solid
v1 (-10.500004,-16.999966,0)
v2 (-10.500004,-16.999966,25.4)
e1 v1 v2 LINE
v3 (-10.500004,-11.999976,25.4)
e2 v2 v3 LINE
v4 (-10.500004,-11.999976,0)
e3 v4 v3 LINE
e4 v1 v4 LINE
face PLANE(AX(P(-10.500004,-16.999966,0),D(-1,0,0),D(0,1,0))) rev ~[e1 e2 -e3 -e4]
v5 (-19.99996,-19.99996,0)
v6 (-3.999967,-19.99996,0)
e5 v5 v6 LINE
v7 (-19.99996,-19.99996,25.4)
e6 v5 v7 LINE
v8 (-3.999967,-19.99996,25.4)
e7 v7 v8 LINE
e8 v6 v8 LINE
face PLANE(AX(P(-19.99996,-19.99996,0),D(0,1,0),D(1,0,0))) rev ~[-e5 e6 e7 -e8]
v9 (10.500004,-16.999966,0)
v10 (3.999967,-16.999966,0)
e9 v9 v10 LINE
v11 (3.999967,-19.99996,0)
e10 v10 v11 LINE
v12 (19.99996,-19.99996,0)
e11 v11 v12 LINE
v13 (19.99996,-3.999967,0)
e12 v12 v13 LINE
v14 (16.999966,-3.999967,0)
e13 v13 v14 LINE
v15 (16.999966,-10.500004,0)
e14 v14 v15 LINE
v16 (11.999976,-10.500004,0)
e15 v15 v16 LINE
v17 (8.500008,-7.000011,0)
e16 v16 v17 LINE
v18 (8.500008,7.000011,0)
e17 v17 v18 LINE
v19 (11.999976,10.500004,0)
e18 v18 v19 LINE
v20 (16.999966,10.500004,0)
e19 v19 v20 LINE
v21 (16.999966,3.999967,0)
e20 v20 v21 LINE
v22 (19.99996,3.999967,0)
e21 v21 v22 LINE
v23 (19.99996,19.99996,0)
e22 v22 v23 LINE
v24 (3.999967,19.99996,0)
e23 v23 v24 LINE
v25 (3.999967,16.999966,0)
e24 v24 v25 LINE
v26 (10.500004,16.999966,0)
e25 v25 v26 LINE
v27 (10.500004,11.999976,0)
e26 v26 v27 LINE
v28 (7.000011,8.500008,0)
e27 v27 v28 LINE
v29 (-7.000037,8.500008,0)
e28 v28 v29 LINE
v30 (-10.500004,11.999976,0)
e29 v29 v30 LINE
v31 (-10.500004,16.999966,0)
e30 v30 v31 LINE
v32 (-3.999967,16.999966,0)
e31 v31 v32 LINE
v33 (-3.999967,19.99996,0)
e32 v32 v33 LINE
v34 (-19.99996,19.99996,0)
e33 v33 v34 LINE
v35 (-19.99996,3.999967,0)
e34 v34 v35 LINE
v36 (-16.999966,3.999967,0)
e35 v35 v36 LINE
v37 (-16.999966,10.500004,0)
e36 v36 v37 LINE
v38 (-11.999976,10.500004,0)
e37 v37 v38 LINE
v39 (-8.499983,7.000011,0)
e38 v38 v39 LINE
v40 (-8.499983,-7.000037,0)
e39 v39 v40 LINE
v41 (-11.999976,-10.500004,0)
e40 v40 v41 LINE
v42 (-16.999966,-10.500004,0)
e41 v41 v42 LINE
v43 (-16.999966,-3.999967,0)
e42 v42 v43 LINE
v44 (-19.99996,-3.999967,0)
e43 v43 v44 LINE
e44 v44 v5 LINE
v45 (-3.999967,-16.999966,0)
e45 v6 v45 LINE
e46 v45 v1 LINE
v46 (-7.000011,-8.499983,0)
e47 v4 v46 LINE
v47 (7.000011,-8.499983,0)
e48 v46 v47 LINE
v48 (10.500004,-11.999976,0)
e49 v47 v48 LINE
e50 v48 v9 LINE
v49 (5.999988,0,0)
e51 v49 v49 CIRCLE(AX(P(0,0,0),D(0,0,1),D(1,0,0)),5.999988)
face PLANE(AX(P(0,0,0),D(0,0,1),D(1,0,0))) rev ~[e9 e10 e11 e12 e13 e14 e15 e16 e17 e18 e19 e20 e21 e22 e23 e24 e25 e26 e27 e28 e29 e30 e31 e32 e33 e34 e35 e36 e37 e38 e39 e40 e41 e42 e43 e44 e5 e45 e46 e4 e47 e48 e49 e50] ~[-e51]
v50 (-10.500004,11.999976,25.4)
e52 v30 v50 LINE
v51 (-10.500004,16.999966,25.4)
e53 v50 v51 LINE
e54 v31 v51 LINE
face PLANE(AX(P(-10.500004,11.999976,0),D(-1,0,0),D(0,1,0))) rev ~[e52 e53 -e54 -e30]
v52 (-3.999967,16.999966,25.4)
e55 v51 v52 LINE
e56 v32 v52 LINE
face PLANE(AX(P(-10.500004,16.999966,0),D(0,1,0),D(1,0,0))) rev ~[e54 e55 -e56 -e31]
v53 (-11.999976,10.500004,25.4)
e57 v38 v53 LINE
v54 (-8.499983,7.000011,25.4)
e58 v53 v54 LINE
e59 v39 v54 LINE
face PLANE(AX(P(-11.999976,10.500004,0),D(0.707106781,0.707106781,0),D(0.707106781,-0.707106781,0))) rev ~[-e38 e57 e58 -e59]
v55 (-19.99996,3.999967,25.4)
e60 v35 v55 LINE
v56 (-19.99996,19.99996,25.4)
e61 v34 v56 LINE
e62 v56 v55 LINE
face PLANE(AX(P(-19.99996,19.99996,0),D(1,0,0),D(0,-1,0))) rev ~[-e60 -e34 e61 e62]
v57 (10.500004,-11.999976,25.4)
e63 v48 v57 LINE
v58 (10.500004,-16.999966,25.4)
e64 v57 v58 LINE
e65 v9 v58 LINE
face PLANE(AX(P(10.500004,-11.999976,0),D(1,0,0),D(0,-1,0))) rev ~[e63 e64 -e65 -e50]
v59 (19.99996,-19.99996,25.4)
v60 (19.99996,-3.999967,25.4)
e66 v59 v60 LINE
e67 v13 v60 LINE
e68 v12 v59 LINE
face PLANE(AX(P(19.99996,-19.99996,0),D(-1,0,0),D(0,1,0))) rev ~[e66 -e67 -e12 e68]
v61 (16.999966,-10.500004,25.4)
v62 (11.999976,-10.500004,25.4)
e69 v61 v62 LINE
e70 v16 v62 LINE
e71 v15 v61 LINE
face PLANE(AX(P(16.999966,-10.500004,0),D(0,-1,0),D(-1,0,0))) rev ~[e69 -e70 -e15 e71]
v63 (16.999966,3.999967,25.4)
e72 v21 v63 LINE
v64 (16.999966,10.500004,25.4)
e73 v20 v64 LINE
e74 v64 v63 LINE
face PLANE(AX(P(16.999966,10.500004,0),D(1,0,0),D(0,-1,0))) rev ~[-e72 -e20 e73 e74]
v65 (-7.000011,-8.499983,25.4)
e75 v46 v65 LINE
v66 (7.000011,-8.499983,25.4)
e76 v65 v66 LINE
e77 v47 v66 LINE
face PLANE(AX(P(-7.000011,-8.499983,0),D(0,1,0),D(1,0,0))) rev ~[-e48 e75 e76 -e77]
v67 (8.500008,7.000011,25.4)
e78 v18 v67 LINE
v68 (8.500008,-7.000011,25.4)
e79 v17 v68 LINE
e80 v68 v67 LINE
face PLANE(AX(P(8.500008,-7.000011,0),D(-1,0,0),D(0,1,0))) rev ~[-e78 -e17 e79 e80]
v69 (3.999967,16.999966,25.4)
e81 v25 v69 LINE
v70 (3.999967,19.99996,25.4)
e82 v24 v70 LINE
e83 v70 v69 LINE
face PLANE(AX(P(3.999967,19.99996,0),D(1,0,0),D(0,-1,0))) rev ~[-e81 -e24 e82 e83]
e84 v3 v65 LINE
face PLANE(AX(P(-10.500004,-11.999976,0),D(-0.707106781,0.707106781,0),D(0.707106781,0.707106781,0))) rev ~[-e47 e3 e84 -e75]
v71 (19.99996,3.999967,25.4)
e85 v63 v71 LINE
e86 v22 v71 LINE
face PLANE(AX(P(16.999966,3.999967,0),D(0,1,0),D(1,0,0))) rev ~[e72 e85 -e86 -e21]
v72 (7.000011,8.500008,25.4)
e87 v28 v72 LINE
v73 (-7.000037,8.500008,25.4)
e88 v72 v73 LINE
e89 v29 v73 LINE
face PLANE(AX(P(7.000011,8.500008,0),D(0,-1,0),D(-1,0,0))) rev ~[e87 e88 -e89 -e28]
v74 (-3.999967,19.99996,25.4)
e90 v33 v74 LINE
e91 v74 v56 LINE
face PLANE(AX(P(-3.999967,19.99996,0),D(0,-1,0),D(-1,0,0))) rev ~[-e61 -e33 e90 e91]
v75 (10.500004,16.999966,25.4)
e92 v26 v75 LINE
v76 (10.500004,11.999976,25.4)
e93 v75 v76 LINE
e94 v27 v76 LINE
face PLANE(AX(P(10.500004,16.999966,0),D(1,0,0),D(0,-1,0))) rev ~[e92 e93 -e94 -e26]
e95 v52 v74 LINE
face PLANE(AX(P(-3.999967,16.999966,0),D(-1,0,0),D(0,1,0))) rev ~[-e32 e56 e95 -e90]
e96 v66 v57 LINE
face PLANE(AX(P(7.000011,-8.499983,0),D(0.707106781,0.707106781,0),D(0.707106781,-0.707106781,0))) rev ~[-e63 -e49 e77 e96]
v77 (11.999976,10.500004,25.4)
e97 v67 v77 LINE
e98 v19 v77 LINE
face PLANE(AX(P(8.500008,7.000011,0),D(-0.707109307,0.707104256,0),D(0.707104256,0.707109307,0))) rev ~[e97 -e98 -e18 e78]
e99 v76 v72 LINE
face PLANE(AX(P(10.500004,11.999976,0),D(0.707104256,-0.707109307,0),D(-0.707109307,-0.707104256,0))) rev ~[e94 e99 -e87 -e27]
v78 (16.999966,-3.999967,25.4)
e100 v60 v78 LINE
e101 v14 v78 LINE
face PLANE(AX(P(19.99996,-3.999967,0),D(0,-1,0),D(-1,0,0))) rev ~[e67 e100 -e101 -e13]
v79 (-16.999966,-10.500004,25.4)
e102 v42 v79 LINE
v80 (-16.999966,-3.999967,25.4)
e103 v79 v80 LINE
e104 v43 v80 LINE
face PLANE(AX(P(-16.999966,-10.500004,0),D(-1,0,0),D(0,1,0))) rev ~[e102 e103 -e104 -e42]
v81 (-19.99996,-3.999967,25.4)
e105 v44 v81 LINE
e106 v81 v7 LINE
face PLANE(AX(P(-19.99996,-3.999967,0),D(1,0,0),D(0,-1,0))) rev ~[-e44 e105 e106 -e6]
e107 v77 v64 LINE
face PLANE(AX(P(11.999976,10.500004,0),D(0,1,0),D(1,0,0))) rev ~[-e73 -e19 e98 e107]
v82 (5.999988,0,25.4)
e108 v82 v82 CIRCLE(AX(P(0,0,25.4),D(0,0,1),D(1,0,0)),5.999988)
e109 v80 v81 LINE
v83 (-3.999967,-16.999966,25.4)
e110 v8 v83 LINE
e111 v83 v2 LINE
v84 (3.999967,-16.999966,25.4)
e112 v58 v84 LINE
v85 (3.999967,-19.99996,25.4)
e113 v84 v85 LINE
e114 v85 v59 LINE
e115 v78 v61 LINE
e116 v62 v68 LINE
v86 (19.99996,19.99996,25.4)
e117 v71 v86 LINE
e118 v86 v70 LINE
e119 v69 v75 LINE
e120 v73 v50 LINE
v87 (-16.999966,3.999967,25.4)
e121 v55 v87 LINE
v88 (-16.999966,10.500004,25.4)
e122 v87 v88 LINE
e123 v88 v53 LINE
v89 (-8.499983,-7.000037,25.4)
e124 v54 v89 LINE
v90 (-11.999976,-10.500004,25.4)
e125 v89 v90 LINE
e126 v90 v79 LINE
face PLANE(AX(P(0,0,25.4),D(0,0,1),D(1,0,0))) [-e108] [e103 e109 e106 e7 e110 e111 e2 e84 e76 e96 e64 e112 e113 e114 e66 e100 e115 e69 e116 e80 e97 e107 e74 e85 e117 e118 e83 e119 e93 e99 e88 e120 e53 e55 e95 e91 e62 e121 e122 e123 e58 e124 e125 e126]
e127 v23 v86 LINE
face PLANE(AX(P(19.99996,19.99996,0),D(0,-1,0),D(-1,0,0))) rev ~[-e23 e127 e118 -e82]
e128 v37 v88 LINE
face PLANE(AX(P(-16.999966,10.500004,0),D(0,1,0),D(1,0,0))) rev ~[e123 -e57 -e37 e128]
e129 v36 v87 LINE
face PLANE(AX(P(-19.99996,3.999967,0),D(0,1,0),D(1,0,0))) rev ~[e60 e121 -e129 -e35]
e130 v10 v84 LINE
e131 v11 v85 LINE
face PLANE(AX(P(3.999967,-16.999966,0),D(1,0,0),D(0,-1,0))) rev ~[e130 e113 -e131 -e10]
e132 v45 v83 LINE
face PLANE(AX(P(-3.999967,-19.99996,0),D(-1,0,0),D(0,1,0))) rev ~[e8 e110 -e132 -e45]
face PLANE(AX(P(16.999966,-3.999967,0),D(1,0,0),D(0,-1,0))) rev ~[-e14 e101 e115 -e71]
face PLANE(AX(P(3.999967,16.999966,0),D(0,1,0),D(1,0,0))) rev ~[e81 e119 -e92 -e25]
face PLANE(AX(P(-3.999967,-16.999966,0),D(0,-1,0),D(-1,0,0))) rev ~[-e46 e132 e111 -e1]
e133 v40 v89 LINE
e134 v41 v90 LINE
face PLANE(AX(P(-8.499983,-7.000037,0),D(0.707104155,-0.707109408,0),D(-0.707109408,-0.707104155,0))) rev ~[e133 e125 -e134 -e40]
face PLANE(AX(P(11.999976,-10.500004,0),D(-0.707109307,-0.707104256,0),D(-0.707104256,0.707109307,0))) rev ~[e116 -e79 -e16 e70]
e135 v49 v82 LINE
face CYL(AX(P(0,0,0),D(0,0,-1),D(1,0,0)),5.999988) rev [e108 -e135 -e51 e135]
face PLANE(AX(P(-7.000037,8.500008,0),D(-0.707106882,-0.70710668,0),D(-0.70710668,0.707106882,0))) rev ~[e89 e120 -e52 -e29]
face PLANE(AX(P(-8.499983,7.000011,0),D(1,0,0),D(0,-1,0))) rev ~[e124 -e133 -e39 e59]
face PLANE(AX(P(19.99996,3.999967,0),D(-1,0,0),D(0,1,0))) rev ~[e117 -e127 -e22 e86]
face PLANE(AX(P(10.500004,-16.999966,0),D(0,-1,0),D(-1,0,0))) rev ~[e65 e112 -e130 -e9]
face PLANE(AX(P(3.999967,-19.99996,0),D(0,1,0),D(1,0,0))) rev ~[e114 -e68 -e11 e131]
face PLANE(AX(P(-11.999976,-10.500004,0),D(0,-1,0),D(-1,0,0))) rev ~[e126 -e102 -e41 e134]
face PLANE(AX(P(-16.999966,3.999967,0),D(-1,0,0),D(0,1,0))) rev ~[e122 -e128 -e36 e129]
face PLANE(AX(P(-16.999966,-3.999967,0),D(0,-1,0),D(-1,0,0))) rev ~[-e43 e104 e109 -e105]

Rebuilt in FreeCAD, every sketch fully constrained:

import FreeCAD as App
import Part
import Sketcher
Q = App.Units.Quantity

doc = App.newDocument("Part")
body = doc.addObject("PartDesign::Body", "Body")

# Sketch on XY plane
sketch1 = doc.addObject("Sketcher::SketchObject", "Sketch")
body.addObject(sketch1)
sketch1.AttachmentSupport = (doc.XY_Plane, [""])
sketch1.MapMode = "FlatFace"
sketch1.addGeometry(Part.LineSegment(App.Vector(4, 20, 0), App.Vector(4, 17, 0)), False)
sketch1.addGeometry(Part.LineSegment(App.Vector(4, 17, 0), App.Vector(10.5, 17, 0)), False)
sketch1.addGeometry(Part.LineSegment(App.Vector(10.5, 17, 0), App.Vector(10.5, 12, 0)), False)
sketch1.addGeometry(Part.LineSegment(App.Vector(10.5, 12, 0), App.Vector(7, 8.5, 0)), False)
sketch1.addGeometry(Part.LineSegment(App.Vector(7, 8.5, 0), App.Vector(-7, 8.5, 0)), False)
sketch1.addGeometry(Part.LineSegment(App.Vector(-7, 8.5, 0), App.Vector(-10.5, 12, 0)), False)
sketch1.addGeometry(Part.LineSegment(App.Vector(-10.5, 12, 0), App.Vector(-10.5, 17, 0)), False)
sketch1.addGeometry(Part.LineSegment(App.Vector(-10.5, 17, 0), App.Vector(-4, 17, 0)), False)
sketch1.addGeometry(Part.LineSegment(App.Vector(-4, 17, 0), App.Vector(-4, 20, 0)), False)
sketch1.addGeometry(Part.LineSegment(App.Vector(-4, 20, 0), App.Vector(-20, 20, 0)), False)
sketch1.addGeometry(Part.LineSegment(App.Vector(-20, 20, 0), App.Vector(-20, 4, 0)), False)
sketch1.addGeometry(Part.LineSegment(App.Vector(-20, 4, 0), App.Vector(-17, 4, 0)), False)
sketch1.addGeometry(Part.LineSegment(App.Vector(-17, 4, 0), App.Vector(-17, 10.5, 0)), False)
sketch1.addGeometry(Part.LineSegment(App.Vector(-17, 10.5, 0), App.Vector(-12, 10.5, 0)), False)
sketch1.addGeometry(Part.LineSegment(App.Vector(-12, 10.5, 0), App.Vector(-8.5, 7, 0)), False)
sketch1.addGeometry(Part.LineSegment(App.Vector(-8.5, 7, 0), App.Vector(-8.5, -7, 0)), False)
sketch1.addGeometry(Part.LineSegment(App.Vector(-8.5, -7, 0), App.Vector(-12, -10.5, 0)), False)
sketch1.addGeometry(Part.LineSegment(App.Vector(-12, -10.5, 0), App.Vector(-17, -10.5, 0)), False)
sketch1.addGeometry(Part.LineSegment(App.Vector(-17, -10.5, 0), App.Vector(-17, -4, 0)), False)
sketch1.addGeometry(Part.LineSegment(App.Vector(-17, -4, 0), App.Vector(-20, -4, 0)), False)
sketch1.addGeometry(Part.LineSegment(App.Vector(-20, -4, 0), App.Vector(-20, -20, 0)), False)
sketch1.addGeometry(Part.LineSegment(App.Vector(-20, -20, 0), App.Vector(-4, -20, 0)), False)
sketch1.addGeometry(Part.LineSegment(App.Vector(-4, -20, 0), App.Vector(-4, -17, 0)), False)
sketch1.addGeometry(Part.LineSegment(App.Vector(-4, -17, 0), App.Vector(-10.5, -17, 0)), False)
sketch1.addGeometry(Part.LineSegment(App.Vector(-10.5, -17, 0), App.Vector(-10.5, -12, 0)), False)
sketch1.addGeometry(Part.LineSegment(App.Vector(-10.5, -12, 0), App.Vector(-7, -8.5, 0)), False)
sketch1.addGeometry(Part.LineSegment(App.Vector(-7, -8.5, 0), App.Vector(7, -8.5, 0)), False)
sketch1.addGeometry(Part.LineSegment(App.Vector(7, -8.5, 0), App.Vector(10.5, -12, 0)), False)
sketch1.addGeometry(Part.LineSegment(App.Vector(10.5, -12, 0), App.Vector(10.5, -17, 0)), False)
sketch1.addGeometry(Part.LineSegment(App.Vector(10.5, -17, 0), App.Vector(4, -17, 0)), False)
sketch1.addGeometry(Part.LineSegment(App.Vector(4, -17, 0), App.Vector(4, -20, 0)), False)
sketch1.addGeometry(Part.LineSegment(App.Vector(4, -20, 0), App.Vector(20, -20, 0)), False)
sketch1.addGeometry(Part.LineSegment(App.Vector(20, -20, 0), App.Vector(20, -4, 0)), False)
sketch1.addGeometry(Part.LineSegment(App.Vector(20, -4, 0), App.Vector(17, -4, 0)), False)
sketch1.addGeometry(Part.LineSegment(App.Vector(17, -4, 0), App.Vector(17, -10.5, 0)), False)
sketch1.addGeometry(Part.LineSegment(App.Vector(17, -10.5, 0), App.Vector(12, -10.5, 0)), False)
sketch1.addGeometry(Part.LineSegment(App.Vector(12, -10.5, 0), App.Vector(8.5, -7, 0)), False)
sketch1.addGeometry(Part.LineSegment(App.Vector(8.5, -7, 0), App.Vector(8.5, 7, 0)), False)
sketch1.addGeometry(Part.LineSegment(App.Vector(8.5, 7, 0), App.Vector(12, 10.5, 0)), False)
sketch1.addGeometry(Part.LineSegment(App.Vector(12, 10.5, 0), App.Vector(17, 10.5, 0)), False)
sketch1.addGeometry(Part.LineSegment(App.Vector(17, 10.5, 0), App.Vector(17, 4, 0)), False)
sketch1.addGeometry(Part.LineSegment(App.Vector(17, 4, 0), App.Vector(20, 4, 0)), False)
sketch1.addGeometry(Part.LineSegment(App.Vector(20, 4, 0), App.Vector(20, 20, 0)), False)
sketch1.addGeometry(Part.LineSegment(App.Vector(20, 20, 0), App.Vector(4, 20, 0)), False)
sketch1.addGeometry(Part.Circle(App.Vector(0, 0, 0), App.Vector(0, 0, 1), 6), False)
sketch1.addConstraint(Sketcher.Constraint("Coincident", 0, 2, 1, 1))
sketch1.addConstraint(Sketcher.Constraint("Coincident", 1, 2, 2, 1))
sketch1.addConstraint(Sketcher.Constraint("Coincident", 2, 2, 3, 1))
sketch1.addConstraint(Sketcher.Constraint("Coincident", 3, 2, 4, 1))
sketch1.addConstraint(Sketcher.Constraint("Coincident", 4, 2, 5, 1))
sketch1.addConstraint(Sketcher.Constraint("Coincident", 5, 2, 6, 1))
sketch1.addConstraint(Sketcher.Constraint("Coincident", 6, 2, 7, 1))
sketch1.addConstraint(Sketcher.Constraint("Coincident", 7, 2, 8, 1))
sketch1.addConstraint(Sketcher.Constraint("Coincident", 8, 2, 9, 1))
sketch1.addConstraint(Sketcher.Constraint("Coincident", 9, 2, 10, 1))
sketch1.addConstraint(Sketcher.Constraint("Coincident", 10, 2, 11, 1))
sketch1.addConstraint(Sketcher.Constraint("Coincident", 11, 2, 12, 1))
sketch1.addConstraint(Sketcher.Constraint("Coincident", 12, 2, 13, 1))
sketch1.addConstraint(Sketcher.Constraint("Coincident", 13, 2, 14, 1))
sketch1.addConstraint(Sketcher.Constraint("Coincident", 14, 2, 15, 1))
sketch1.addConstraint(Sketcher.Constraint("Coincident", 15, 2, 16, 1))
sketch1.addConstraint(Sketcher.Constraint("Coincident", 16, 2, 17, 1))
sketch1.addConstraint(Sketcher.Constraint("Coincident", 17, 2, 18, 1))
sketch1.addConstraint(Sketcher.Constraint("Coincident", 18, 2, 19, 1))
sketch1.addConstraint(Sketcher.Constraint("Coincident", 19, 2, 20, 1))
sketch1.addConstraint(Sketcher.Constraint("Coincident", 20, 2, 21, 1))
sketch1.addConstraint(Sketcher.Constraint("Coincident", 21, 2, 22, 1))
sketch1.addConstraint(Sketcher.Constraint("Coincident", 22, 2, 23, 1))
sketch1.addConstraint(Sketcher.Constraint("Coincident", 23, 2, 24, 1))
sketch1.addConstraint(Sketcher.Constraint("Coincident", 24, 2, 25, 1))
sketch1.addConstraint(Sketcher.Constraint("Coincident", 25, 2, 26, 1))
sketch1.addConstraint(Sketcher.Constraint("Coincident", 26, 2, 27, 1))
sketch1.addConstraint(Sketcher.Constraint("Coincident", 27, 2, 28, 1))
sketch1.addConstraint(Sketcher.Constraint("Coincident", 28, 2, 29, 1))
sketch1.addConstraint(Sketcher.Constraint("Coincident", 29, 2, 30, 1))
sketch1.addConstraint(Sketcher.Constraint("Coincident", 30, 2, 31, 1))
sketch1.addConstraint(Sketcher.Constraint("Coincident", 31, 2, 32, 1))
sketch1.addConstraint(Sketcher.Constraint("Coincident", 32, 2, 33, 1))
sketch1.addConstraint(Sketcher.Constraint("Coincident", 33, 2, 34, 1))
sketch1.addConstraint(Sketcher.Constraint("Coincident", 34, 2, 35, 1))
sketch1.addConstraint(Sketcher.Constraint("Coincident", 35, 2, 36, 1))
sketch1.addConstraint(Sketcher.Constraint("Coincident", 36, 2, 37, 1))
sketch1.addConstraint(Sketcher.Constraint("Coincident", 37, 2, 38, 1))
sketch1.addConstraint(Sketcher.Constraint("Coincident", 38, 2, 39, 1))
sketch1.addConstraint(Sketcher.Constraint("Coincident", 39, 2, 40, 1))
sketch1.addConstraint(Sketcher.Constraint("Coincident", 40, 2, 41, 1))
sketch1.addConstraint(Sketcher.Constraint("Coincident", 41, 2, 42, 1))
sketch1.addConstraint(Sketcher.Constraint("Coincident", 42, 2, 43, 1))
sketch1.addConstraint(Sketcher.Constraint("Coincident", 43, 2, 0, 1))
sketch1.addConstraint(Sketcher.Constraint("Vertical", 0))
sketch1.addConstraint(Sketcher.Constraint("Horizontal", 1))
sketch1.addConstraint(Sketcher.Constraint("Vertical", 2))
sketch1.addConstraint(Sketcher.Constraint("Horizontal", 4))
sketch1.addConstraint(Sketcher.Constraint("Vertical", 6))
sketch1.addConstraint(Sketcher.Constraint("Horizontal", 7))
sketch1.addConstraint(Sketcher.Constraint("Vertical", 8))
sketch1.addConstraint(Sketcher.Constraint("Horizontal", 9))
sketch1.addConstraint(Sketcher.Constraint("Vertical", 10))
sketch1.addConstraint(Sketcher.Constraint("Horizontal", 11))
sketch1.addConstraint(Sketcher.Constraint("Vertical", 12))
sketch1.addConstraint(Sketcher.Constraint("Horizontal", 13))
sketch1.addConstraint(Sketcher.Constraint("Vertical", 15))
sketch1.addConstraint(Sketcher.Constraint("Horizontal", 17))
sketch1.addConstraint(Sketcher.Constraint("Vertical", 18))
sketch1.addConstraint(Sketcher.Constraint("Horizontal", 19))
sketch1.addConstraint(Sketcher.Constraint("Vertical", 20))
sketch1.addConstraint(Sketcher.Constraint("Horizontal", 21))
sketch1.addConstraint(Sketcher.Constraint("Vertical", 22))
sketch1.addConstraint(Sketcher.Constraint("Horizontal", 23))
sketch1.addConstraint(Sketcher.Constraint("Vertical", 24))
sketch1.addConstraint(Sketcher.Constraint("Horizontal", 26))
sketch1.addConstraint(Sketcher.Constraint("Vertical", 28))
sketch1.addConstraint(Sketcher.Constraint("Horizontal", 29))
sketch1.addConstraint(Sketcher.Constraint("Vertical", 30))
sketch1.addConstraint(Sketcher.Constraint("Horizontal", 31))
sketch1.addConstraint(Sketcher.Constraint("Vertical", 32))
sketch1.addConstraint(Sketcher.Constraint("Horizontal", 33))
sketch1.addConstraint(Sketcher.Constraint("Vertical", 34))
sketch1.addConstraint(Sketcher.Constraint("Horizontal", 35))
sketch1.addConstraint(Sketcher.Constraint("Vertical", 37))
sketch1.addConstraint(Sketcher.Constraint("Horizontal", 39))
sketch1.addConstraint(Sketcher.Constraint("Vertical", 40))
sketch1.addConstraint(Sketcher.Constraint("Horizontal", 41))
sketch1.addConstraint(Sketcher.Constraint("Vertical", 42))
sketch1.addConstraint(Sketcher.Constraint("Horizontal", 43))
sketch1.addConstraint(Sketcher.Constraint("Coincident", 44, 3, -1, 1))
sketch1.addConstraint(Sketcher.Constraint("Symmetric", 0, 2, 22, 2, -1, 1))
sketch1.addConstraint(Sketcher.Constraint("Symmetric", 2, 2, 24, 2, -1, 1))
sketch1.addConstraint(Sketcher.Constraint("Symmetric", 5, 2, 27, 2, -1, 1))
sketch1.addConstraint(Sketcher.Constraint("Symmetric", 7, 2, 29, 2, -1, 1))
sketch1.addConstraint(Sketcher.Constraint("Symmetric", 9, 2, 31, 2, -1, 1))
sketch1.addConstraint(Sketcher.Constraint("Symmetric", 11, 2, 33, 2, -1, 1))
sketch1.addConstraint(Sketcher.Constraint("Symmetric", 13, 2, 35, 2, -1, 1))
sketch1.addConstraint(Sketcher.Constraint("Symmetric", 16, 2, 38, 2, -1, 1))
sketch1.addConstraint(Sketcher.Constraint("Symmetric", 18, 2, 40, 2, -1, 1))
sketch1.addConstraint(Sketcher.Constraint("Symmetric", 20, 2, 42, 2, -1, 1))
sketch1.addConstraint(Sketcher.Constraint("Symmetric", 2, 2, 5, 2, -2))
sketch1.addConstraint(Sketcher.Constraint("Symmetric", 0, 2, 7, 2, -2))
sketch1.addConstraint(Sketcher.Constraint("Symmetric", 20, 2, 31, 2, -2))
sketch1.addConstraint(Sketcher.Constraint("Symmetric", 18, 2, 33, 2, -2))
sketch1.addConstraint(Sketcher.Constraint("Symmetric", 16, 2, 35, 2, -2))
sketch1.addConstraint(Sketcher.Constraint("Parallel", 5, 14))
sketch1.addConstraint(Sketcher.Constraint("Parallel", 3, 16))
sketch1.addConstraint(Sketcher.Constraint("Perpendicular", 14, 25))
sketch1.addConstraint(Sketcher.Constraint("Perpendicular", 25, 27))
sketch1.addConstraint(Sketcher.Constraint("Perpendicular", 16, 36))
sketch1.addConstraint(Sketcher.Constraint("Horizontal", 14, 2, 37, 2))
sketch1.addConstraint(Sketcher.Constraint("Vertical", 3, 2, 26, 2))
sketch1.addConstraint(Sketcher.Constraint("Equal", 41, 0))
sketch1.addConstraint(Sketcher.Constraint("Equal", 39, 2))
sketch1.addConstraint(Sketcher.Constraint("Equal", 43, 10))
sketch1.addConstraint(Sketcher.Constraint("Equal", 29, 12))
sketch1.addConstraint(Sketcher.Constraint("Equal", 4, 15))
sketch1.addConstraint(Sketcher.Constraint("Equal", 26, 37))
sketch1.addConstraint(Sketcher.Constraint("Equal", 3, 16))
sketch1.addConstraint(Sketcher.Constraint("Equal", 14, 25))
sketch1.addConstraint(Sketcher.Constraint("Diameter", 44, 11.999976))
sketch1.addConstraint(Sketcher.Constraint("DistanceY", -1, 1, 8, 2, Q("0.7874 in")))
sketch1.addConstraint(Sketcher.Constraint("Distance", 5, 4.949702))
sketch1.addConstraint(Sketcher.Constraint("DistanceX", 13, 1, 13, 2, 4.99999))
sketch1.addConstraint(Sketcher.Constraint("DistanceY", 10, 2, 6, 2, 12.999999))
sketch1.addConstraint(Sketcher.Constraint("Distance", 3, 4.94972))
sketch1.addConstraint(Sketcher.Constraint("DistanceX", 1, 1, 1, 2, 6.500037))
sketch1.addConstraint(Sketcher.Constraint("DistanceX", 4, 2, 4, 1, 14.000048))
pad1 = doc.addObject("PartDesign::Pad", "Pad")
body.addObject(pad1)
pad1.Profile = sketch1
pad1.Length = Q("1 in")

doc.recompute()
